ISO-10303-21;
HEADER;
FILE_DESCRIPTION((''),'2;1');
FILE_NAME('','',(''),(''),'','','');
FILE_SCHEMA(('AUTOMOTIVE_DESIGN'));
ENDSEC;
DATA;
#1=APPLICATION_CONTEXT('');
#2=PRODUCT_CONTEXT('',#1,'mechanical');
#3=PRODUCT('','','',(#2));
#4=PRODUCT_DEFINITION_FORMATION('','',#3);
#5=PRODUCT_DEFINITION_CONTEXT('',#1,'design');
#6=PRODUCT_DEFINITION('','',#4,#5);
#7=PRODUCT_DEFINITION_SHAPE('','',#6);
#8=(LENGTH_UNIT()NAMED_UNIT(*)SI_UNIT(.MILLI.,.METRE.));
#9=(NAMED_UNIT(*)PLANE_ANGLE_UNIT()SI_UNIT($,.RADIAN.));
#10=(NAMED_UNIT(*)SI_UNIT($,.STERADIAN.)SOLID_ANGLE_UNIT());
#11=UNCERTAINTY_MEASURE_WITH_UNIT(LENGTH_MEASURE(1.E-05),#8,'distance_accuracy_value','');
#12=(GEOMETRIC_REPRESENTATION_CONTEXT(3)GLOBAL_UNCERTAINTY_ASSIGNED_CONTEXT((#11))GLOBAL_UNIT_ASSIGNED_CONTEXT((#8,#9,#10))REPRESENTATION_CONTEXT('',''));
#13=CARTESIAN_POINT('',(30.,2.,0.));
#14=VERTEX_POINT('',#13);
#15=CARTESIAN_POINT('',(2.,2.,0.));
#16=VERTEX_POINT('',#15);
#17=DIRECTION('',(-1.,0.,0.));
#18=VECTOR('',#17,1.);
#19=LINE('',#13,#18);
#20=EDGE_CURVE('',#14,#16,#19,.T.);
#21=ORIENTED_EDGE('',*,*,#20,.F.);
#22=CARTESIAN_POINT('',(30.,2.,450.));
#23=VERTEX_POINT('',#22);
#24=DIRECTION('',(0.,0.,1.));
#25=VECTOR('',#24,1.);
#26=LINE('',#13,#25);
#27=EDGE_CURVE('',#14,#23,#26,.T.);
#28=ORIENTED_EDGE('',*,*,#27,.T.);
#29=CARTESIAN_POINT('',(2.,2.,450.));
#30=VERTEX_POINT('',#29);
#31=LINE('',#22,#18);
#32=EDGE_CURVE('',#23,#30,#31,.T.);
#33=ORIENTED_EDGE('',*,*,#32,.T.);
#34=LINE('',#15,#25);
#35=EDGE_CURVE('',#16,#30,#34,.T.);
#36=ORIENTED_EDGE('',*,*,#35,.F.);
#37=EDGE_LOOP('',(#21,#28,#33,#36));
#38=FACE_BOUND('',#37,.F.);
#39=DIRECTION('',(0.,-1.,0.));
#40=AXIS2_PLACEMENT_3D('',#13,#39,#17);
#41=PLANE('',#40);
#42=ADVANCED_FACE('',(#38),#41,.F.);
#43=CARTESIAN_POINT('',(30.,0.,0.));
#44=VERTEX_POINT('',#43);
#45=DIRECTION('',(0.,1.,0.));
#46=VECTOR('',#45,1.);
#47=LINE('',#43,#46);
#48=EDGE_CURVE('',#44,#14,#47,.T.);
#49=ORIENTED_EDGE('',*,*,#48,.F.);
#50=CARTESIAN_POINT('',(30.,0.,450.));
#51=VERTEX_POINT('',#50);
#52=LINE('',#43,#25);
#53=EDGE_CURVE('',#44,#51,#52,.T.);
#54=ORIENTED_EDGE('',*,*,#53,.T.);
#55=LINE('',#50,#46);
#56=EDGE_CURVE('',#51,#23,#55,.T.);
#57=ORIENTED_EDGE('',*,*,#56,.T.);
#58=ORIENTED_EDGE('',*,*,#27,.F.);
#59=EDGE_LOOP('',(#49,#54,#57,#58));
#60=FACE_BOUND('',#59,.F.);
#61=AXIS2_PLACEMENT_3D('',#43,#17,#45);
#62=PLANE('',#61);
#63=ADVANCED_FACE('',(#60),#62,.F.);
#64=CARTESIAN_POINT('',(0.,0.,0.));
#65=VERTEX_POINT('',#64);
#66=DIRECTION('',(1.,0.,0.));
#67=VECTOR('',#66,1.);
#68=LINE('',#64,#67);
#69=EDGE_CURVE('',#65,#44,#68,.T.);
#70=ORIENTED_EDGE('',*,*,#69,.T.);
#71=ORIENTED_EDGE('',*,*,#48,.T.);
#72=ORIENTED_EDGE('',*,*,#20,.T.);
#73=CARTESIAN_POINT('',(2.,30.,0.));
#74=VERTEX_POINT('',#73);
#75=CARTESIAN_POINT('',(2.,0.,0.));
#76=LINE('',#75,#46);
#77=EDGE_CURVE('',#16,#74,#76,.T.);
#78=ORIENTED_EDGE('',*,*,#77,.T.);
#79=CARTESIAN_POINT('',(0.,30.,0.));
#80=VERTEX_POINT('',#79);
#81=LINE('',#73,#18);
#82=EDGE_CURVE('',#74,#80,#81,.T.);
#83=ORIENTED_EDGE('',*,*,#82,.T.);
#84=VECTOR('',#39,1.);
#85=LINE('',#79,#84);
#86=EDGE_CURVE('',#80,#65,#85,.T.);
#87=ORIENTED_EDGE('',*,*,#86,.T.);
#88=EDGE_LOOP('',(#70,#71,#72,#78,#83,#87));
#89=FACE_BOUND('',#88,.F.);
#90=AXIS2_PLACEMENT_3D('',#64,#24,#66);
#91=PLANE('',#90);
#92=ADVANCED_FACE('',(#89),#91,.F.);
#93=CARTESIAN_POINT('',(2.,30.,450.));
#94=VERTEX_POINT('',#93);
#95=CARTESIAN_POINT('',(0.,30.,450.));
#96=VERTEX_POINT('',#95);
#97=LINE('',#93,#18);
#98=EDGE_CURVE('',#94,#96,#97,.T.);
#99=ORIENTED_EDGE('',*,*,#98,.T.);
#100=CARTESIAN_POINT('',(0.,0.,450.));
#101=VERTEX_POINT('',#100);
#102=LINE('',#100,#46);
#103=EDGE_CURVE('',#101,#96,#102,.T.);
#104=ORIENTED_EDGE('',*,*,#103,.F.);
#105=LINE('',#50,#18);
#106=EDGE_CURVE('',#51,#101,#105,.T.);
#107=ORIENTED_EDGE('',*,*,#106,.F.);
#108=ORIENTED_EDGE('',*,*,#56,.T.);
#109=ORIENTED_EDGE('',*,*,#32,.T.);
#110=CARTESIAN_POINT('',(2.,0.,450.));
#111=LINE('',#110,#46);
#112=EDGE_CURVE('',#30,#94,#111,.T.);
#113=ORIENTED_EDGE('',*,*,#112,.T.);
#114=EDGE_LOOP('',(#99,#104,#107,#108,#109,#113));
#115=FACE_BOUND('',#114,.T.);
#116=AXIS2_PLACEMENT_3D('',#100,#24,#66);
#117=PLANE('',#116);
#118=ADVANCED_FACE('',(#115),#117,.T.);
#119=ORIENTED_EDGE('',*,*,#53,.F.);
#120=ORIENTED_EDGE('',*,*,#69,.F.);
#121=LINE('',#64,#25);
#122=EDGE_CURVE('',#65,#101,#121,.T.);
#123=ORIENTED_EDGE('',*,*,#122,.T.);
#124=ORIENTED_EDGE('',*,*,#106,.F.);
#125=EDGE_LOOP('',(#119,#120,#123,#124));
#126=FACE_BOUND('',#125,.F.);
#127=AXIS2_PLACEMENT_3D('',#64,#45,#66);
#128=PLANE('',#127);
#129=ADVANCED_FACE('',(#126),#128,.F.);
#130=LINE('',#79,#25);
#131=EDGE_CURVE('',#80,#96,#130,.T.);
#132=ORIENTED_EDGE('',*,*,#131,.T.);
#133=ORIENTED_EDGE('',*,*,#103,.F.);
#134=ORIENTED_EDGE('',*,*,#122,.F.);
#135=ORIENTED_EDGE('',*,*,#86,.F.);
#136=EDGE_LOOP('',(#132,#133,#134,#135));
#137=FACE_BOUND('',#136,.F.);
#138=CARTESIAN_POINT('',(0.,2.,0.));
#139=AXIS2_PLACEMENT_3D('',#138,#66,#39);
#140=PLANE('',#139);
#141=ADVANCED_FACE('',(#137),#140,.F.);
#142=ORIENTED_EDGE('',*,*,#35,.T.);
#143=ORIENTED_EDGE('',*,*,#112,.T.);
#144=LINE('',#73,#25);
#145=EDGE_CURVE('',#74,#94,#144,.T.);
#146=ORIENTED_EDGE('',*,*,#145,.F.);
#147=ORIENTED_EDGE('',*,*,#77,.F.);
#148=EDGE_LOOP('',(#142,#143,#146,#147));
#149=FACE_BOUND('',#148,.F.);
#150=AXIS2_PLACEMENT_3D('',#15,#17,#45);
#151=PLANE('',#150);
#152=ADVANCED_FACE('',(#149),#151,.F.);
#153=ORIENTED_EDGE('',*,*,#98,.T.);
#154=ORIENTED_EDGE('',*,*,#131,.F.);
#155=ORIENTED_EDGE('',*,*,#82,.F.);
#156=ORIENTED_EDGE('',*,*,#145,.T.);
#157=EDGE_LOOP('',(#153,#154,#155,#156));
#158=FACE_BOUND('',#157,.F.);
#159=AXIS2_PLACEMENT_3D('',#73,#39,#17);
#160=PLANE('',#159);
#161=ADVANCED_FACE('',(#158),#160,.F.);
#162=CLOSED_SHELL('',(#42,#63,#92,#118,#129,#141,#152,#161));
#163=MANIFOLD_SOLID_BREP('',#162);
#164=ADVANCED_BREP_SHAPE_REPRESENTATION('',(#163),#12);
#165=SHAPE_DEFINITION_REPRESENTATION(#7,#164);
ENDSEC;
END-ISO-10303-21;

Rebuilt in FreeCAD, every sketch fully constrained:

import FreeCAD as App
import Part
import Sketcher
Q = App.Units.Quantity


def add_polygon(sketch, points):
    """Adds a closed chain of lines whose ends are joined by coincident constraints."""
    first, n = sketch.GeometryCount, len(points)
    for a, b in zip(points, points[1:] + points[:1]):
        sketch.addGeometry(Part.LineSegment(App.Vector(*a, 0), App.Vector(*b, 0)), False)
    for i in range(n):
        sketch.addConstraint(Sketcher.Constraint("Coincident", first + i, 2, first + (i + 1) % n, 1))

doc = App.newDocument("Part")
body = doc.addObject("PartDesign::Body", "Body")

sketch1 = body.newObject("Sketcher::SketchObject", "Sketch")
sketch1.AttachmentSupport = (doc.getObject("XY_Plane"), [""])
sketch1.MapMode = "FlatFace"
add_polygon(sketch1, [(0, 0), (30, 0), (30, 2), (2, 2), (2, 30), (0, 30)])
sketch1.addConstraint([
    Sketcher.Constraint("Horizontal", 0),
    Sketcher.Constraint("Vertical", 1),
    Sketcher.Constraint("Horizontal", 2),
    Sketcher.Constraint("Vertical", 3),
    Sketcher.Constraint("Horizontal", 4),
    Sketcher.Constraint("Vertical", 5),
    Sketcher.Constraint("Coincident", 5, 2, -1, 1),
    Sketcher.Constraint("Equal", 4, 1),
    Sketcher.Constraint("Equal", 2, 3),
    Sketcher.Constraint("DistanceX", 0, 1, 0, 2, Q("30 mm")),
    Sketcher.Constraint("DistanceX", 4, 2, 4, 1, Q("2 mm")),
])
pad1 = body.newObject("PartDesign::Pad", "Pad")
pad1.Profile = sketch1
pad1.Length = 450

doc.recompute()
